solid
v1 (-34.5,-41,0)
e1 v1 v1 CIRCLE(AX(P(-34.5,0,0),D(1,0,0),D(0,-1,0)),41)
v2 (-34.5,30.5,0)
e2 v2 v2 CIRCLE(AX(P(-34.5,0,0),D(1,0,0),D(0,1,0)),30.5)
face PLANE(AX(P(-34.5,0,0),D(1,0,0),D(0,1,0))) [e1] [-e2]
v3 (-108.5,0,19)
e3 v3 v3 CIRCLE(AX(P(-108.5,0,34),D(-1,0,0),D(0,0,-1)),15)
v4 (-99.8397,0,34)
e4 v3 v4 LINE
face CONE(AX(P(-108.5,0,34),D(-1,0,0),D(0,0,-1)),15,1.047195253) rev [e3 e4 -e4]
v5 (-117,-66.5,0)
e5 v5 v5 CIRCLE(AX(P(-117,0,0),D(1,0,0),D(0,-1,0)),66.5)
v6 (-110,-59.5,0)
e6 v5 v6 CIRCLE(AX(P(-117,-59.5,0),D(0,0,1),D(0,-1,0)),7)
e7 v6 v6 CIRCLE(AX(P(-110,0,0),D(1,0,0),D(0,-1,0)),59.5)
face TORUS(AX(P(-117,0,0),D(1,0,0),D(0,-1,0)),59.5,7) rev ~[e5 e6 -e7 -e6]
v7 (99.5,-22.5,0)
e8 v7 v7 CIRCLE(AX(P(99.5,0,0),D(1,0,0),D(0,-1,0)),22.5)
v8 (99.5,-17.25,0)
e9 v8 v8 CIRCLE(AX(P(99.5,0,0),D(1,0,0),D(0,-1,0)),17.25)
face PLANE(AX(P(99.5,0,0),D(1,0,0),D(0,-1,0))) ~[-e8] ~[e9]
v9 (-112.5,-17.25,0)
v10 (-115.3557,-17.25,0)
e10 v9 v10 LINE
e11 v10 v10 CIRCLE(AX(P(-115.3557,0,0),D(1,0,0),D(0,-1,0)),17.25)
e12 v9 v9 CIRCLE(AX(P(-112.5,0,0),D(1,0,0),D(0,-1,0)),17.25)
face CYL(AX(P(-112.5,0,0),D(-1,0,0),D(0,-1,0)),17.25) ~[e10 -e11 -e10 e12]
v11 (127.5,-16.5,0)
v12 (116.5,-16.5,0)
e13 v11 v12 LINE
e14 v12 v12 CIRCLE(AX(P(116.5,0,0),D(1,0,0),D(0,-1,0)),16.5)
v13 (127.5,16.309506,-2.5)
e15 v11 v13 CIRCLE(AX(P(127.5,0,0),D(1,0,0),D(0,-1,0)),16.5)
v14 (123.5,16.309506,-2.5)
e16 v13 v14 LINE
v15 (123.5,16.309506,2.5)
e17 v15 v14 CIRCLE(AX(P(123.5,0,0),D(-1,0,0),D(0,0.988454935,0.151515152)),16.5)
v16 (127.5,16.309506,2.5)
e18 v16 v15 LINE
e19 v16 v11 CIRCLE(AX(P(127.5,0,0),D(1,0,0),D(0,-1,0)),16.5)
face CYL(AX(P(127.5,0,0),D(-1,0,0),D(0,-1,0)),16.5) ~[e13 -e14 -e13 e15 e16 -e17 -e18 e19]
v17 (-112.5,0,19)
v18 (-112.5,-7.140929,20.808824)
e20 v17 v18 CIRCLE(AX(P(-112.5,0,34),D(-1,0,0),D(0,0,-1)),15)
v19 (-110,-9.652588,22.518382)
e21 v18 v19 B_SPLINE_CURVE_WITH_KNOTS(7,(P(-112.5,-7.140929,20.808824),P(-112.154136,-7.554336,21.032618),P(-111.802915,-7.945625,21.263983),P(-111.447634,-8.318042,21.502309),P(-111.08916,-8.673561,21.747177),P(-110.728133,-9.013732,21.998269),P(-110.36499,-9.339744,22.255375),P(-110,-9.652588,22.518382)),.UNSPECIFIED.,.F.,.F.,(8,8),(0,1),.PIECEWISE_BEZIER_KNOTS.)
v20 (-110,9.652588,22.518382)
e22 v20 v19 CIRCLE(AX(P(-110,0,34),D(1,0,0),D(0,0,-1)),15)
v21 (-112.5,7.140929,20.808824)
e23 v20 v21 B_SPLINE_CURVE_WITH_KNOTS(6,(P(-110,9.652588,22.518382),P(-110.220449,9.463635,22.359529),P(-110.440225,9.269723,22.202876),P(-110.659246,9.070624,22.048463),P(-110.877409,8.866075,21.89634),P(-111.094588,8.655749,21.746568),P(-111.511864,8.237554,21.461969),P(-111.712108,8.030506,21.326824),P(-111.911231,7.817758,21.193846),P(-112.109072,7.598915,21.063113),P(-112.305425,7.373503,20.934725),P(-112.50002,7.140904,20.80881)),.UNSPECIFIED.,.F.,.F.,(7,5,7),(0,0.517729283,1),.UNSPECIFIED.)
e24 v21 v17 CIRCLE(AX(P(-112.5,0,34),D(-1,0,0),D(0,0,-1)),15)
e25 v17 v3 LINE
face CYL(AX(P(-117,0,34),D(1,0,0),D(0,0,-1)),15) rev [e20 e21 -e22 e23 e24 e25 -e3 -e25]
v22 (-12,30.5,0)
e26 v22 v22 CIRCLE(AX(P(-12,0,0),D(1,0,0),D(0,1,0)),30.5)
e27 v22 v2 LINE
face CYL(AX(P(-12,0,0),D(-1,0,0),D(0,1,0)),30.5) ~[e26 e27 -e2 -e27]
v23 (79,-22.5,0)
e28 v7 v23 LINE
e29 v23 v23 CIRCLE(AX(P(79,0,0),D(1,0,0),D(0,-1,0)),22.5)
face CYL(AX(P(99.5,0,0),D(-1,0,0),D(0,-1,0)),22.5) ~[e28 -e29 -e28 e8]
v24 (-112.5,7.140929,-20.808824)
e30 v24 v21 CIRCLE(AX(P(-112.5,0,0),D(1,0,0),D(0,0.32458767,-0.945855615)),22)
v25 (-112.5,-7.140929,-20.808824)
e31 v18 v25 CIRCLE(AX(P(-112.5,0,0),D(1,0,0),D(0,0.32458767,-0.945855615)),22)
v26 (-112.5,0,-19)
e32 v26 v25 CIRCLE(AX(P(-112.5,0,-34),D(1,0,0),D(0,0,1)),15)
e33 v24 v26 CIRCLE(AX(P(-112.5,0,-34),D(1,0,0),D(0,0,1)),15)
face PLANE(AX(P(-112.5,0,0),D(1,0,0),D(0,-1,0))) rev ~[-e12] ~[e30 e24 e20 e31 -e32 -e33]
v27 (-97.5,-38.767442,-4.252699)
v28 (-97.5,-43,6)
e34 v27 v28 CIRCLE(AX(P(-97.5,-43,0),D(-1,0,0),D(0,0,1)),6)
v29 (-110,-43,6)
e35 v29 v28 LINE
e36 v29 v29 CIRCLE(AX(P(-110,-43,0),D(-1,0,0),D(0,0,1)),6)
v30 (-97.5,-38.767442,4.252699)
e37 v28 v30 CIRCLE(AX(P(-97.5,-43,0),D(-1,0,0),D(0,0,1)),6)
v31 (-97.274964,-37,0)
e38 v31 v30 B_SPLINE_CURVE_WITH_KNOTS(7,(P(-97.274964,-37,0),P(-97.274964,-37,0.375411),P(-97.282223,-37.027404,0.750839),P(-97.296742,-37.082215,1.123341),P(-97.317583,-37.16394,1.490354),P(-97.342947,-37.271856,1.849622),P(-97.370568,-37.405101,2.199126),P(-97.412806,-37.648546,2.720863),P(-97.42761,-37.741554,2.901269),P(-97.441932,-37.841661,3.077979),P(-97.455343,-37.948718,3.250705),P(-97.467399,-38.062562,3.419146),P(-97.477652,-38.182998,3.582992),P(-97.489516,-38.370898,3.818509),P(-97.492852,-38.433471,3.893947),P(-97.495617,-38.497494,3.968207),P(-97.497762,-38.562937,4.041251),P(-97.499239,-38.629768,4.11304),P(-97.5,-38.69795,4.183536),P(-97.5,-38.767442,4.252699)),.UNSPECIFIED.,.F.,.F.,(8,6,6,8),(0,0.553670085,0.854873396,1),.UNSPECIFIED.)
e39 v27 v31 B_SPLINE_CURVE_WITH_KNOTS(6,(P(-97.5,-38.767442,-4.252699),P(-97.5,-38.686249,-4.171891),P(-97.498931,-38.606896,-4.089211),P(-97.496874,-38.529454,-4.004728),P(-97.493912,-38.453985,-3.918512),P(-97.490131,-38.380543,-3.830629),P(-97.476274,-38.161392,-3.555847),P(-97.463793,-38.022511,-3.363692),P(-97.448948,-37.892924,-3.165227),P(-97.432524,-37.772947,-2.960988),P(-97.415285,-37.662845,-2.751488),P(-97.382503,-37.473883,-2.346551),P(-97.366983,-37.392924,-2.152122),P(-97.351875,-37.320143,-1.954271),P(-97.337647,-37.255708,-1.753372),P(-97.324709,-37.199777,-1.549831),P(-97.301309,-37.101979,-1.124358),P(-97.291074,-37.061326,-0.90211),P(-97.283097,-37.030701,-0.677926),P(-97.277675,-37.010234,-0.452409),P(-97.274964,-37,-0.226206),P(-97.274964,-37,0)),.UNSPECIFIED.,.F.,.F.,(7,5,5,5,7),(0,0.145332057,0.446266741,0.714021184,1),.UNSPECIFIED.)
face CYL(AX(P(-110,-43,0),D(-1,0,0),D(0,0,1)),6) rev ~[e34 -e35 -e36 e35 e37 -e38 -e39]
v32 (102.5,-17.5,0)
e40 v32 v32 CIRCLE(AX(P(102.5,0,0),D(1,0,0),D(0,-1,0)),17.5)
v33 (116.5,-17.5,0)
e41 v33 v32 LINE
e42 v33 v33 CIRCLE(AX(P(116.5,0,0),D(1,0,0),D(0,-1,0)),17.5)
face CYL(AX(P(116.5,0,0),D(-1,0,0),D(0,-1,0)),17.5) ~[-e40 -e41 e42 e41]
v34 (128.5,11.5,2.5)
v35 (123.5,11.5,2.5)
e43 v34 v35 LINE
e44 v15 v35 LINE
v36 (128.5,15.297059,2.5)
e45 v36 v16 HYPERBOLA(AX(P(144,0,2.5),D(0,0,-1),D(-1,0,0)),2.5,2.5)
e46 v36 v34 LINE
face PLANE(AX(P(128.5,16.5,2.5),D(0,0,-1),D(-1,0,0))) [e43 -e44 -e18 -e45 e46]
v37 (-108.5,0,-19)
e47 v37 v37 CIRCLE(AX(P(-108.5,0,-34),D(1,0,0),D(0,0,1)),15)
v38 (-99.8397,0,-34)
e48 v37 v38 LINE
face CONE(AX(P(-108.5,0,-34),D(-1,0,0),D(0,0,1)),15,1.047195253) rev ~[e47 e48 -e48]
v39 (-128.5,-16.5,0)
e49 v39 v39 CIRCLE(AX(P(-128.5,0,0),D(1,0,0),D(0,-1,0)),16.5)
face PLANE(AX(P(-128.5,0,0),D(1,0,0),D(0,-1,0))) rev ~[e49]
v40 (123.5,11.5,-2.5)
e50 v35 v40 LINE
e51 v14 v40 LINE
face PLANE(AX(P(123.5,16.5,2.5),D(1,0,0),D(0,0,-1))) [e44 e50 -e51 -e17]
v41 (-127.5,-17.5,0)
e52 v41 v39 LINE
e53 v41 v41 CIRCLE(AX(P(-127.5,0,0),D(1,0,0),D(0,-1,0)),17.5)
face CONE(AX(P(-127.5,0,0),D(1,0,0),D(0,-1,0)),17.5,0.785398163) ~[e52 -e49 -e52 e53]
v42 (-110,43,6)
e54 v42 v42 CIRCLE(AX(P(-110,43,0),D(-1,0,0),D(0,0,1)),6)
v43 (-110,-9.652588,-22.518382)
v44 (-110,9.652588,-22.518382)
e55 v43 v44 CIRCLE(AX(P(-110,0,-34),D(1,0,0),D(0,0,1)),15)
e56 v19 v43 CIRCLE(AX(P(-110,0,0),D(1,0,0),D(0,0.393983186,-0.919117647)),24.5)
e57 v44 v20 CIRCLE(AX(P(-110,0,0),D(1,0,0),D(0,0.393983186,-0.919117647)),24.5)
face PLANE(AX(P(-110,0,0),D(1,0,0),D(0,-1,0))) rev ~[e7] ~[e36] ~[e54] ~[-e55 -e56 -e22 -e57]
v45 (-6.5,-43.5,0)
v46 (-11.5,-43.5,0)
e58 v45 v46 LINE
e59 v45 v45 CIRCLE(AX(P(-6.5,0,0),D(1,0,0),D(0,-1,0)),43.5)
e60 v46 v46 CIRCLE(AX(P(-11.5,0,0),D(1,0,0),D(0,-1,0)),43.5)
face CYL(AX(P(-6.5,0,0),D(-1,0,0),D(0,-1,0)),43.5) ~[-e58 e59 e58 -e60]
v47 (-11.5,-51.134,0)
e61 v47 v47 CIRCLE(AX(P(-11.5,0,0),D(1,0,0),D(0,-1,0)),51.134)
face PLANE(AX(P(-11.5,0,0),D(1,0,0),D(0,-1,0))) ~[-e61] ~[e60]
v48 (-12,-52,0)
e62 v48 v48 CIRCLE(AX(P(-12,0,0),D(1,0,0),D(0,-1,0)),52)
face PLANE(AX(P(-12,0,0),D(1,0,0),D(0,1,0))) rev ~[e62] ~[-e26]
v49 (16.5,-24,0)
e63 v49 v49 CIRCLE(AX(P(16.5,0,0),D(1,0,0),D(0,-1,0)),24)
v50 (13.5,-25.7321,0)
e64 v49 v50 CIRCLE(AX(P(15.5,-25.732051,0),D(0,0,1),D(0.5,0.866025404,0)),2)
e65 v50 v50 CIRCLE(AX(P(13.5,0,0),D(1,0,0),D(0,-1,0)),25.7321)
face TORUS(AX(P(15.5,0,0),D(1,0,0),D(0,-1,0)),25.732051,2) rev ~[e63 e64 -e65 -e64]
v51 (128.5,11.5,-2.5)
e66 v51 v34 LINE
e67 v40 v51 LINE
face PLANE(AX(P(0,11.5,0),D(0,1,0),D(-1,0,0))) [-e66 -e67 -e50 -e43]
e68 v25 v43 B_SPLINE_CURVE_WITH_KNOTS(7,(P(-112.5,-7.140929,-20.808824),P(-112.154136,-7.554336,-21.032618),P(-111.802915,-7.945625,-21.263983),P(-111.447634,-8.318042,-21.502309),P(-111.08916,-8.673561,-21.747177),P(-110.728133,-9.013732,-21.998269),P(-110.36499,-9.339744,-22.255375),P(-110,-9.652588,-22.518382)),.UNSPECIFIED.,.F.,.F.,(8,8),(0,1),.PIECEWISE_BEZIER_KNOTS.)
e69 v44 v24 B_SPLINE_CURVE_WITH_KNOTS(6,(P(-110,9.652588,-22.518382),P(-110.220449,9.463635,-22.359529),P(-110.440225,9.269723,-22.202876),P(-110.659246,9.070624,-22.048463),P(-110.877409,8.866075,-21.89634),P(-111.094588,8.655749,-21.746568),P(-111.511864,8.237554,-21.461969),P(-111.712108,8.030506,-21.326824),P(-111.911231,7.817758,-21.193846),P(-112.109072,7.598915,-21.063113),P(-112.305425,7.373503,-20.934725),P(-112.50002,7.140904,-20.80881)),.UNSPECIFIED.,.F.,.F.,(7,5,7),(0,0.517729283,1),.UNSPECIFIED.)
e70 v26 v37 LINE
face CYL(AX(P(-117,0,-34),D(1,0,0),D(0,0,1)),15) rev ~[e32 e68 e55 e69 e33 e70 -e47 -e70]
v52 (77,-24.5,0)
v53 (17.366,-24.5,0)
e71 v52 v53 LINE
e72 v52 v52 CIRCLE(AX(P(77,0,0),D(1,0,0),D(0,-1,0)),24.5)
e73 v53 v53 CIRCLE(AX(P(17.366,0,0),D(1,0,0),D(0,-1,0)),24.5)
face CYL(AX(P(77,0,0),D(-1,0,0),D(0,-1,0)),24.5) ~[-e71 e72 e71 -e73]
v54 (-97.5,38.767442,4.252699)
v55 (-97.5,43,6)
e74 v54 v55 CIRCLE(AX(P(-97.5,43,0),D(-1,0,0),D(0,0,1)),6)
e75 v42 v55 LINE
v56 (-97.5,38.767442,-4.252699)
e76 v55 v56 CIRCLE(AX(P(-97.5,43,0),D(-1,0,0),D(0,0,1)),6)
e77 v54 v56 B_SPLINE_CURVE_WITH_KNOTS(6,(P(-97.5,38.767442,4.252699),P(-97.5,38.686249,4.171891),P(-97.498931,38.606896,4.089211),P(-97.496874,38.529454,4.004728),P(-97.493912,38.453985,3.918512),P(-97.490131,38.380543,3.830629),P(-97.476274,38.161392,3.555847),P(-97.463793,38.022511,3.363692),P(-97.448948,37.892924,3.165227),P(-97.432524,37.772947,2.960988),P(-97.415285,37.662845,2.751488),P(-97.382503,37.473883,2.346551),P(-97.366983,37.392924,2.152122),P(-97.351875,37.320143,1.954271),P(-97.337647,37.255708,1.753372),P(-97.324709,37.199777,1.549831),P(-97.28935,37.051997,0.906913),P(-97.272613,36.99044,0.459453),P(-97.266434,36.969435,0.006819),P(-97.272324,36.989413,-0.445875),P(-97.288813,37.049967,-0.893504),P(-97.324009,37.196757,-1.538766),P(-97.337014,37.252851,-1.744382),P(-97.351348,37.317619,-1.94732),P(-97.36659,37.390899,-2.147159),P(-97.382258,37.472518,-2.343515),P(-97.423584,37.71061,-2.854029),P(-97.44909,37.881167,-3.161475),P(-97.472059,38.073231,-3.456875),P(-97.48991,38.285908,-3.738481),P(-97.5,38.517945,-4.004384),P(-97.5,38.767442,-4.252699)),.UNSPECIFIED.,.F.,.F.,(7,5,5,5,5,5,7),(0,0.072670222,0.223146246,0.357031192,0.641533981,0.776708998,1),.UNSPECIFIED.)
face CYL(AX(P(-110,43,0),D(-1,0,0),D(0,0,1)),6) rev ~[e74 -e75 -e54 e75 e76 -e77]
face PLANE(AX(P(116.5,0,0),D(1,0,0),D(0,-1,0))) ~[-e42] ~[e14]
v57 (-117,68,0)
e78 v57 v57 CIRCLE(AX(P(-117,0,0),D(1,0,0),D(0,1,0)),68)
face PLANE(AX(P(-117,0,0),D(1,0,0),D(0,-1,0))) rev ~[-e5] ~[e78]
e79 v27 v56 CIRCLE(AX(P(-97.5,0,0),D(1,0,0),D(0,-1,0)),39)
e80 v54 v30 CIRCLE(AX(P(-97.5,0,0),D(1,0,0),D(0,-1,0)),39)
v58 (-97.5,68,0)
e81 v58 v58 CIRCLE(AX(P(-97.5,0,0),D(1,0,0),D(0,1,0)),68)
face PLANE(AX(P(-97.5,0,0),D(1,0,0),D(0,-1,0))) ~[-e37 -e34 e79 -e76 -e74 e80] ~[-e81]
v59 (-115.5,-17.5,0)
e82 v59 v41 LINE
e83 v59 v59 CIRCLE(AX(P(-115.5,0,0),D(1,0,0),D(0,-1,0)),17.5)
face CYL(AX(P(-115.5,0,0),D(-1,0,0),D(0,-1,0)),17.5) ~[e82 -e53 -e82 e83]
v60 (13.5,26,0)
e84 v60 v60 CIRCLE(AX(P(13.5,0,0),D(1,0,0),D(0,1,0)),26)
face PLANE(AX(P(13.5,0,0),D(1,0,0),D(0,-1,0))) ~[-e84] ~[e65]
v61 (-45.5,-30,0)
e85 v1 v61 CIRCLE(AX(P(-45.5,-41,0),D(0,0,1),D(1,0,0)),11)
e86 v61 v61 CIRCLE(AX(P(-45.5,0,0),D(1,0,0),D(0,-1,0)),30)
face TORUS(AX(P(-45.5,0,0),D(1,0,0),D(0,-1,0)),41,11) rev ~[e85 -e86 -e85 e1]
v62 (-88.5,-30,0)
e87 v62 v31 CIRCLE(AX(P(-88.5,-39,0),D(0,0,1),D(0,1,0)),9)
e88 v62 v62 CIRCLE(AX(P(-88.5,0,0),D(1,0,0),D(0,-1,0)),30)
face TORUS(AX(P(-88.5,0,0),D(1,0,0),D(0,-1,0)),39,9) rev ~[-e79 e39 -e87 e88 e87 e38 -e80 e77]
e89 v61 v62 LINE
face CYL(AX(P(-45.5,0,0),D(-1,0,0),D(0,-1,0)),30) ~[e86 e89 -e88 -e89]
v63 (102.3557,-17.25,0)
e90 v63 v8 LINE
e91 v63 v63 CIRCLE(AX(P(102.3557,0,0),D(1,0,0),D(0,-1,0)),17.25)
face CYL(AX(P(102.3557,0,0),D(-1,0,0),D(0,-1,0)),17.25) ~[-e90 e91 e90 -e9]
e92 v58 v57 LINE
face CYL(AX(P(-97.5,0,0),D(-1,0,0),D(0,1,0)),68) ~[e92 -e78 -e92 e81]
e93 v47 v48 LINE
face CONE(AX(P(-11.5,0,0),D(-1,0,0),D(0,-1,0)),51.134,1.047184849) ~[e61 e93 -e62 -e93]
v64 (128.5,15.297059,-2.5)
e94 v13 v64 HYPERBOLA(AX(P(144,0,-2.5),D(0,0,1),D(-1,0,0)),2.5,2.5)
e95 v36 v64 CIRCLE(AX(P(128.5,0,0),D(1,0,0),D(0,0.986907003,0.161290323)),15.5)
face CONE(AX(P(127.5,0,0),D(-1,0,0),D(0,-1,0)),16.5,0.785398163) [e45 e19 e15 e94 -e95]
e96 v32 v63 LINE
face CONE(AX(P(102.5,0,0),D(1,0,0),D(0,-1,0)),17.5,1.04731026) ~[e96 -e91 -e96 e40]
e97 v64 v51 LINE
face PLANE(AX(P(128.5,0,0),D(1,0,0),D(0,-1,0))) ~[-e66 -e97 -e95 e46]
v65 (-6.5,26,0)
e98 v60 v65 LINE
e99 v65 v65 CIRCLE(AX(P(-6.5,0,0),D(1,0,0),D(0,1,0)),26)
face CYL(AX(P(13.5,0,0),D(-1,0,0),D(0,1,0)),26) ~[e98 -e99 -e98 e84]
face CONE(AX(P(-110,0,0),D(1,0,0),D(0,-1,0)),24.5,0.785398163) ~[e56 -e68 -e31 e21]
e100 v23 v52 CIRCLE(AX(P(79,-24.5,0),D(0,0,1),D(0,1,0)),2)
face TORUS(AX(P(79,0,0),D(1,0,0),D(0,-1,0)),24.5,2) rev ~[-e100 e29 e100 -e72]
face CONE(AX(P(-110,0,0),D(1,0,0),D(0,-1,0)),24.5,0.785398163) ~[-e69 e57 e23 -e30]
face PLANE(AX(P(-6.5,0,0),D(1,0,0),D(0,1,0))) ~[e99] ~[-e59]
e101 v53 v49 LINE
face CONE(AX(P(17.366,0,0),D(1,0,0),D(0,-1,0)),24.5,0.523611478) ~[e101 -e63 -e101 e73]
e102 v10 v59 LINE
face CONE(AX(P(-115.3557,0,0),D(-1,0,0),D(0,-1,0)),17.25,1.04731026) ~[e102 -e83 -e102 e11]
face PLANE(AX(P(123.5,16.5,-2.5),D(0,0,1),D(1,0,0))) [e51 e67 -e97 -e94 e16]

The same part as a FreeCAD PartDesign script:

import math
import FreeCAD as App
import Part
import Sketcher
Q = App.Units.Quantity

doc = App.newDocument("Part")
body = doc.addObject("PartDesign::Body", "Body")

# Sketch on XY plane
sketch1 = body.newObject("Sketcher::SketchObject", "Sketch")
sketch1.AttachmentSupport = (doc.getObject("XY_Plane"), [""])
sketch1.MapMode = "FlatFace"
sketch1.addGeometry(Part.LineSegment(App.Vector(128.5, 0, 0), App.Vector(-128.5, 0, 0)), False)
sketch1.addGeometry(Part.LineSegment(App.Vector(-128.5, 0, 0), App.Vector(-128.5, -16.5, 0)), False)
sketch1.addGeometry(Part.LineSegment(App.Vector(-128.5, -16.5, 0), App.Vector(-127.5, -17.5, 0)), False)
sketch1.addGeometry(Part.LineSegment(App.Vector(-127.5, -17.5, 0), App.Vector(-115.5, -17.5, 0)), False)
sketch1.addGeometry(Part.LineSegment(App.Vector(-115.5, -17.5, 0), App.Vector(-115.3557, -17.25, 0)), False)
sketch1.addGeometry(Part.LineSegment(App.Vector(-115.3557, -17.25, 0), App.Vector(-112.5, -17.25, 0)), False)
sketch1.addGeometry(Part.LineSegment(App.Vector(-112.5, -17.25, 0), App.Vector(-112.5, -22, 0)), False)
sketch1.addGeometry(Part.LineSegment(App.Vector(-112.5, -22, 0), App.Vector(-110, -24.5, 0)), False)
sketch1.addGeometry(Part.LineSegment(App.Vector(-110, -24.5, 0), App.Vector(-110, -59.5, 0)), False)
sketch1.addGeometry(Part.ArcOfCircle(Part.Circle(App.Vector(-117, -59.5, 0), App.Vector(0, 0, 1), 7), math.radians(-90), math.radians(0)), False)
sketch1.addGeometry(Part.LineSegment(App.Vector(-117, -66.5, 0), App.Vector(-117, -81.1, 0)), False)
sketch1.addGeometry(Part.LineSegment(App.Vector(-117, -81.1, 0), App.Vector(-97.5, -81.1, 0)), False)
sketch1.addGeometry(Part.LineSegment(App.Vector(-97.5, -81.1, 0), App.Vector(-97.5, -39, 0)), False)
sketch1.addGeometry(Part.ArcOfCircle(Part.Circle(App.Vector(-88.5, -39, 0), App.Vector(0, 0, 1), 9), math.radians(90), math.radians(180)), False)
sketch1.addGeometry(Part.LineSegment(App.Vector(-88.5, -30, 0), App.Vector(-45.5, -30, 0)), False)
sketch1.addGeometry(Part.ArcOfCircle(Part.Circle(App.Vector(-45.5, -41, 0), App.Vector(0, 0, 1), 11), math.radians(0), math.radians(90)), False)
sketch1.addGeometry(Part.LineSegment(App.Vector(-34.5, -41, 0), App.Vector(-34.5, -68.35, 0)), False)
sketch1.addGeometry(Part.LineSegment(App.Vector(-34.5, -68.35, 0), App.Vector(-12, -68.35, 0)), False)
sketch1.addGeometry(Part.LineSegment(App.Vector(-12, -68.35, 0), App.Vector(-12, -52, 0)), False)
sketch1.addGeometry(Part.LineSegment(App.Vector(-12, -52, 0), App.Vector(-11.5, -51.134, 0)), False)
sketch1.addGeometry(Part.LineSegment(App.Vector(-11.5, -51.134, 0), App.Vector(-11.5, -43.5, 0)), False)
sketch1.addGeometry(Part.LineSegment(App.Vector(-11.5, -43.5, 0), App.Vector(-6.5, -43.5, 0)), False)
sketch1.addGeometry(Part.LineSegment(App.Vector(-6.5, -43.5, 0), App.Vector(-6.5, -52.283, 0)), False)
sketch1.addGeometry(Part.LineSegment(App.Vector(-6.5, -52.283, 0), App.Vector(13.5, -52.283, 0)), False)
sketch1.addGeometry(Part.LineSegment(App.Vector(13.5, -52.283, 0), App.Vector(13.5, -25.7321, 0)), False)
sketch1.addGeometry(Part.ArcOfCircle(Part.Circle(App.Vector(15.5, -25.7321, 0), App.Vector(0, 0, 1), 2.000043), math.radians(60.000705), math.radians(180)), False)
sketch1.addGeometry(Part.LineSegment(App.Vector(16.5, -24, 0), App.Vector(17.366, -24.5, 0)), False)
sketch1.addGeometry(Part.LineSegment(App.Vector(17.366, -24.5, 0), App.Vector(77, -24.5, 0)), False)
sketch1.addGeometry(Part.ArcOfCircle(Part.Circle(App.Vector(79, -24.5, 0), App.Vector(0, 0, 1), 2), math.radians(90), math.radians(180)), False)
sketch1.addGeometry(Part.LineSegment(App.Vector(79, -22.5, 0), App.Vector(99.5, -22.5, 0)), False)
sketch1.addGeometry(Part.LineSegment(App.Vector(99.5, -22.5, 0), App.Vector(99.5, -17.25, 0)), False)
sketch1.addGeometry(Part.LineSegment(App.Vector(99.5, -17.25, 0), App.Vector(102.3557, -17.25, 0)), False)
sketch1.addGeometry(Part.LineSegment(App.Vector(102.3557, -17.25, 0), App.Vector(102.5, -17.5, 0)), False)
sketch1.addGeometry(Part.LineSegment(App.Vector(102.5, -17.5, 0), App.Vector(116.5, -17.5, 0)), False)
sketch1.addGeometry(Part.LineSegment(App.Vector(116.5, -17.5, 0), App.Vector(116.5, -16.5, 0)), False)
sketch1.addGeometry(Part.LineSegment(App.Vector(116.5, -16.5, 0), App.Vector(127.5, -16.5, 0)), False)
sketch1.addGeometry(Part.LineSegment(App.Vector(127.5, -16.5, 0), App.Vector(128.5, -15.5, 0)), False)
sketch1.addGeometry(Part.LineSegment(App.Vector(128.5, -15.5, 0), App.Vector(128.5, 0, 0)), False)
sketch1.addConstraint(Sketcher.Constraint("Coincident", 0, 2, 1, 1))
sketch1.addConstraint(Sketcher.Constraint("Coincident", 1, 2, 2, 1))
sketch1.addConstraint(Sketcher.Constraint("Coincident", 2, 2, 3, 1))
sketch1.addConstraint(Sketcher.Constraint("Coincident", 3, 2, 4, 1))
sketch1.addConstraint(Sketcher.Constraint("Coincident", 4, 2, 5, 1))
sketch1.addConstraint(Sketcher.Constraint("Coincident", 5, 2, 6, 1))
sketch1.addConstraint(Sketcher.Constraint("Coincident", 6, 2, 7, 1))
sketch1.addConstraint(Sketcher.Constraint("Coincident", 7, 2, 8, 1))
sketch1.addConstraint(Sketcher.Constraint("Tangent", 8, 2, 9, 2))
sketch1.addConstraint(Sketcher.Constraint("Coincident", 9, 1, 10, 1))
sketch1.addConstraint(Sketcher.Constraint("Coincident", 10, 2, 11, 1))
sketch1.addConstraint(Sketcher.Constraint("Coincident", 11, 2, 12, 1))
sketch1.addConstraint(Sketcher.Constraint("Tangent", 12, 2, 13, 2))
sketch1.addConstraint(Sketcher.Constraint("Tangent", 13, 1, 14, 1))
sketch1.addConstraint(Sketcher.Constraint("Tangent", 14, 2, 15, 2))
sketch1.addConstraint(Sketcher.Constraint("Tangent", 15, 1, 16, 1))
sketch1.addConstraint(Sketcher.Constraint("Coincident", 16, 2, 17, 1))
sketch1.addConstraint(Sketcher.Constraint("Coincident", 17, 2, 18, 1))
sketch1.addConstraint(Sketcher.Constraint("Coincident", 18, 2, 19, 1))
sketch1.addConstraint(Sketcher.Constraint("Coincident", 19, 2, 20, 1))
sketch1.addConstraint(Sketcher.Constraint("Coincident", 20, 2, 21, 1))
sketch1.addConstraint(Sketcher.Constraint("Coincident", 21, 2, 22, 1))
sketch1.addConstraint(Sketcher.Constraint("Coincident", 22, 2, 23, 1))
sketch1.addConstraint(Sketcher.Constraint("Coincident", 23, 2, 24, 1))
sketch1.addConstraint(Sketcher.Constraint("Tangent", 24, 2, 25, 2))
sketch1.addConstraint(Sketcher.Constraint("Tangent", 25, 1, 26, 1))
sketch1.addConstraint(Sketcher.Constraint("Coincident", 26, 2, 27, 1))
sketch1.addConstraint(Sketcher.Constraint("Coincident", 27, 2, 28, 2))
sketch1.addConstraint(Sketcher.Constraint("Tangent", 28, 1, 29, 1))
sketch1.addConstraint(Sketcher.Constraint("Coincident", 29, 2, 30, 1))
sketch1.addConstraint(Sketcher.Constraint("Coincident", 30, 2, 31, 1))
sketch1.addConstraint(Sketcher.Constraint("Coincident", 31, 2, 32, 1))
sketch1.addConstraint(Sketcher.Constraint("Coincident", 32, 2, 33, 1))
sketch1.addConstraint(Sketcher.Constraint("Coincident", 33, 2, 34, 1))
sketch1.addConstraint(Sketcher.Constraint("Coincident", 34, 2, 35, 1))
sketch1.addConstraint(Sketcher.Constraint("Coincident", 35, 2, 36, 1))
sketch1.addConstraint(Sketcher.Constraint("Coincident", 36, 2, 37, 1))
sketch1.addConstraint(Sketcher.Constraint("Coincident", 37, 2, 0, 1))
sketch1.addConstraint(Sketcher.Constraint("Horizontal", 0))
sketch1.addConstraint(Sketcher.Constraint("Vertical", 1))
sketch1.addConstraint(Sketcher.Constraint("Horizontal", 3))
sketch1.addConstraint(Sketcher.Constraint("Horizontal", 5))
sketch1.addConstraint(Sketcher.Constraint("Vertical", 6))
sketch1.addConstraint(Sketcher.Constraint("Vertical", 8))
sketch1.addConstraint(Sketcher.Constraint("Vertical", 10))
sketch1.addConstraint(Sketcher.Constraint("Horizontal", 11))
sketch1.addConstraint(Sketcher.Constraint("Vertical", 12))
sketch1.addConstraint(Sketcher.Constraint("Horizontal", 14))
sketch1.addConstraint(Sketcher.Constraint("Vertical", 16))
sketch1.addConstraint(Sketcher.Constraint("Horizontal", 17))
sketch1.addConstraint(Sketcher.Constraint("Vertical", 18))
sketch1.addConstraint(Sketcher.Constraint("Vertical", 20))
sketch1.addConstraint(Sketcher.Constraint("Horizontal", 21))
sketch1.addConstraint(Sketcher.Constraint("Vertical", 22))
sketch1.addConstraint(Sketcher.Constraint("Horizontal", 23))
sketch1.addConstraint(Sketcher.Constraint("Vertical", 24))
sketch1.addConstraint(Sketcher.Constraint("Horizontal", 27))
sketch1.addConstraint(Sketcher.Constraint("Horizontal", 29))
sketch1.addConstraint(Sketcher.Constraint("Vertical", 30))
sketch1.addConstraint(Sketcher.Constraint("Horizontal", 31))
sketch1.addConstraint(Sketcher.Constraint("Horizontal", 33))
sketch1.addConstraint(Sketcher.Constraint("Vertical", 34))
sketch1.addConstraint(Sketcher.Constraint("Horizontal", 35))
sketch1.addConstraint(Sketcher.Constraint("Vertical", 37))
sketch1.addConstraint(Sketcher.Constraint("Equal", 25, 28))
sketch1.addConstraint(Sketcher.Constraint("Symmetric", 0, 2, 37, 2, -1, 1))
sketch1.addConstraint(Sketcher.Constraint("Parallel", 2, 7))
sketch1.addConstraint(Sketcher.Constraint("Parallel", 4, 19))
sketch1.addConstraint(Sketcher.Constraint("Perpendicular", 19, 26))
sketch1.addConstraint(Sketcher.Constraint("Perpendicular", 7, 36))
sketch1.addConstraint(Sketcher.Constraint("Horizontal", 28, 3, 7, 2))
sketch1.addConstraint(Sketcher.Constraint("Horizontal", 7, 2, 26, 2))
sketch1.addConstraint(Sketcher.Constraint("Horizontal", 5, 2, 30, 2))
sketch1.addConstraint(Sketcher.Constraint("Horizontal", 3, 2, 32, 2))
sketch1.addConstraint(Sketcher.Constraint("Horizontal", 1, 2, 34, 2))
sketch1.addConstraint(Sketcher.Constraint("Equal", 5, 31))
sketch1.addConstraint(Sketcher.Constraint("Equal", 19, 26))
sketch1.addConstraint(Sketcher.Constraint("Equal", 4, 32))
sketch1.addConstraint(Sketcher.Constraint("Equal", 2, 36))
sketch1.addConstraint(Sketcher.Constraint("Radius", 9, Q("7 mm")))
sketch1.addConstraint(Sketcher.Constraint("Radius", 13, Q("9 mm")))
sketch1.addConstraint(Sketcher.Constraint("Radius", 15, Q("11 mm")))
sketch1.addConstraint(Sketcher.Constraint("Radius", 25, Q("2 mm")))
sketch1.addConstraint(Sketcher.Constraint("DistanceX", 0, 2, 0, 1, Q("257 mm")))
sketch1.addConstraint(Sketcher.Constraint("DistanceX", 21, 1, 21, 2, Q("5 mm")))
sketch1.addConstraint(Sketcher.Constraint("DistanceX", 23, 1, 23, 2, Q("20 mm")))
sketch1.addConstraint(Sketcher.Constraint("DistanceX", 35, 1, 35, 2, Q("11 mm")))
sketch1.addConstraint(Sketcher.Constraint("DistanceY", 8, 2, 8, 1, Q("35 mm")))
sketch1.addConstraint(Sketcher.Constraint("DistanceY", 34, 1, 34, 2, Q("1 mm")))
sketch1.addConstraint(Sketcher.Constraint("Angle", 2, Q("-45 deg")))
sketch1.addConstraint(Sketcher.Constraint("Distance", 19, Q("1 mm")))
sketch1.addConstraint(Sketcher.Constraint("DistanceX", 11, 1, 11, 2, Q("19.5 mm")))
sketch1.addConstraint(Sketcher.Constraint("DistanceX", 17, 1, 17, 2, Q("22.5 mm")))
sketch1.addConstraint(Sketcher.Constraint("DistanceY", 13, 1, -1, 1, Q("30 mm")))
sketch1.addConstraint(Sketcher.Constraint("DistanceX", 13, 3, 25, 3, Q("104 mm")))
sketch1.addConstraint(Sketcher.Constraint("DistanceX", 3, 2, 5, 2, Q("3 mm")))
sketch1.addConstraint(Sketcher.Constraint("DistanceY", 7, 2, 3, 2, Q("7 mm")))
sketch1.addConstraint(Sketcher.Constraint("DistanceX", 9, 1, 8, 2, Q("7 mm")))
sketch1.addConstraint(Sketcher.Constraint("DistanceY", 12, 2, 6, 2, Q("17 mm")))
sketch1.addConstraint(Sketcher.Constraint("DistanceY", 18, 2, 15, 1, Q("11 mm")))
sketch1.addConstraint(Sketcher.Constraint("DistanceX", 25, 3, 25, 1, Q("1 mm")))
sketch1.addConstraint(Sketcher.Constraint("DistanceX", 30, 2, 33, 2, Q("17 mm")))
sketch1.addConstraint(Sketcher.Constraint("DistanceX", 15, 1, -1, 1, Q("34.5 mm")))
sketch1.addConstraint(Sketcher.Constraint("DistanceY", 28, 1, -1, 1, Q("22.5 mm")))
sketch1.addConstraint(Sketcher.Constraint("DistanceY", 21, 2, 25, 1, Q("19.5 mm")))
sketch1.addConstraint(Sketcher.Constraint("DistanceX", 27, 2, 29, 2, Q("22.5 mm")))
sketch1.addConstraint(Sketcher.Constraint("DistanceY", 10, 2, 10, 1, Q("14.6 mm")))
sketch1.addConstraint(Sketcher.Constraint("DistanceY", 6, 2, 6, 1, Q("4.75 mm")))
sketch1.addConstraint(Sketcher.Constraint("DistanceY", 16, 2, 16, 1, Q("27.35 mm")))
sketch1.addConstraint(Sketcher.Constraint("DistanceY", 22, 2, 22, 1, Q("8.783 mm")))
revolution = body.newObject("PartDesign::Revolution", "Revolution")
revolution.Profile = sketch1
revolution.ReferenceAxis = (sketch1, ["H_Axis"])
revolution.Angle = 360

# Sketch on XZ plane
sketch2 = body.newObject("Sketcher::SketchObject", "Sketch001")
sketch2.AttachmentSupport = (doc.getObject("XZ_Plane"), [""])
sketch2.MapMode = "FlatFace"
sketch2.AttachmentOffset = App.Placement(App.Vector(0, 0, -16.5), App.Rotation())
sketch2.addGeometry(Part.LineSegment(App.Vector(128.5, 2.5, 0), App.Vector(128.5, -2.5, 0)), False)
sketch2.addGeometry(Part.LineSegment(App.Vector(128.5, -2.5, 0), App.Vector(123.5, -2.5, 0)), False)
sketch2.addGeometry(Part.LineSegment(App.Vector(123.5, -2.5, 0), App.Vector(123.5, 2.5, 0)), False)
sketch2.addGeometry(Part.LineSegment(App.Vector(123.5, 2.5, 0), App.Vector(128.5, 2.5, 0)), False)
sketch2.addConstraint(Sketcher.Constraint("Coincident", 0, 2, 1, 1))
sketch2.addConstraint(Sketcher.Constraint("Coincident", 1, 2, 2, 1))
sketch2.addConstraint(Sketcher.Constraint("Coincident", 2, 2, 3, 1))
sketch2.addConstraint(Sketcher.Constraint("Coincident", 3, 2, 0, 1))
sketch2.addConstraint(Sketcher.Constraint("Vertical", 0))
sketch2.addConstraint(Sketcher.Constraint("Horizontal", 1))
sketch2.addConstraint(Sketcher.Constraint("Vertical", 2))
sketch2.addConstraint(Sketcher.Constraint("Horizontal", 3))
sketch2.addConstraint(Sketcher.Constraint("Equal", 3, 0))
sketch2.addConstraint(Sketcher.Constraint("DistanceX", 1, 2, 1, 1, Q("5 mm")))
sketch2.addConstraint(Sketcher.Constraint("DistanceX", -1, 1, 0, 2, Q("128.5 mm")))
sketch2.addConstraint(Sketcher.Constraint("DistanceY", 0, 2, -1, 1, Q("2.5 mm")))
pocket1 = body.newObject("PartDesign::Pocket", "Pocket")
pocket1.Profile = sketch2
pocket1.Length = 5
pocket1.Reversed = True

# Sketch on YZ plane
sketch3 = body.newObject("Sketcher::SketchObject", "Sketch002")
sketch3.AttachmentSupport = (doc.getObject("YZ_Plane"), [""])
sketch3.MapMode = "FlatFace"
sketch3.AttachmentOffset = App.Placement(App.Vector(0, 0, -110), App.Rotation())
sketch3.addGeometry(Part.Circle(App.Vector(43, 0, 0), App.Vector(0, 0, 1), 6), False)
sketch3.addGeometry(Part.Circle(App.Vector(-43, 0, 0), App.Vector(0, 0, 1), 6), False)
sketch3.addConstraint(Sketcher.Constraint("Equal", 0, 1))
sketch3.addConstraint(Sketcher.Constraint("Symmetric", 0, 3, 1, 3, -1, 1))
sketch3.addConstraint(Sketcher.Constraint("PointOnObject", 0, 3, -1))
sketch3.addConstraint(Sketcher.Constraint("Diameter", 0, Q("12 mm")))
sketch3.addConstraint(Sketcher.Constraint("DistanceX", 1, 3, 0, 3, Q("86 mm")))
pocket2 = body.newObject("PartDesign::Pocket", "Pocket001")
pocket2.Profile = sketch3
pocket2.Length = 34
pocket2.Reversed = True

# Sketch on XZ plane
sketch4 = body.newObject("Sketcher::SketchObject", "Sketch003")
sketch4.AttachmentSupport = (doc.getObject("XZ_Plane"), [""])
sketch4.MapMode = "FlatFace"
sketch4.addGeometry(Part.LineSegment(App.Vector(-99.8397, -34, 0), App.Vector(-117, -34, 0)), False)
sketch4.addGeometry(Part.LineSegment(App.Vector(-117, -34, 0), App.Vector(-117, -19, 0)), False)
sketch4.addGeometry(Part.LineSegment(App.Vector(-117, -19, 0), App.Vector(-108.5, -19, 0)), False)
sketch4.addGeometry(Part.LineSegment(App.Vector(-108.5, -19, 0), App.Vector(-99.8397, -34, 0)), False)
sketch4.addGeometry(Part.LineSegment(App.Vector(-117, -34, 0), App.Vector(-99.8397, -34, 0)), True)  # axis
sketch4.addConstraint(Sketcher.Constraint("Coincident", 0, 2, 1, 1))
sketch4.addConstraint(Sketcher.Constraint("Coincident", 1, 2, 2, 1))
sketch4.addConstraint(Sketcher.Constraint("Coincident", 2, 2, 3, 1))
sketch4.addConstraint(Sketcher.Constraint("Coincident", 3, 2, 0, 1))
sketch4.addConstraint(Sketcher.Constraint("Horizontal", 0))
sketch4.addConstraint(Sketcher.Constraint("Vertical", 1))
sketch4.addConstraint(Sketcher.Constraint("Horizontal", 2))
sketch4.addConstraint(Sketcher.Constraint("Horizontal", 4))
sketch4.addConstraint(Sketcher.Constraint("Coincident", 4, 1, 0, 2))
sketch4.addConstraint(Sketcher.Constraint("Equal", 0, 4))
sketch4.addConstraint(Sketcher.Constraint("Angle", 3, Q("-59.9999 deg")))
sketch4.addConstraint(Sketcher.Constraint("DistanceY", 1, 1, 1, 2, Q("15 mm")))
sketch4.addConstraint(Sketcher.Constraint("DistanceX", 2, 1, 2, 2, Q("8.5 mm")))
sketch4.addConstraint(Sketcher.Constraint("DistanceX", 0, 2, -1, 1, Q("117 mm")))
sketch4.addConstraint(Sketcher.Constraint("DistanceY", 0, 2, -1, 1, Q("34 mm")))
groove = body.newObject("PartDesign::Groove", "Groove")
groove.Profile = sketch4
groove.ReferenceAxis = (sketch4, ["Axis0"])
groove.Angle = 360
doc.recompute()

mirrored = body.newObject("PartDesign::Mirrored", "Mirrored")
mirrored.Originals = [groove]
mirrored.MirrorPlane = (doc.getObject("XY_Plane"), [""])
body.Tip = mirrored

# Sketch on XY plane
sketch5 = body.newObject("Sketcher::SketchObject", "Sketch004")
sketch5.AttachmentSupport = (doc.getObject("XY_Plane"), [""])
sketch5.MapMode = "FlatFace"
sketch5.addGeometry(Part.LineSegment(App.Vector(-117, 81.1, 0), App.Vector(-117, 68, 0)), False)
sketch5.addGeometry(Part.LineSegment(App.Vector(-117, 68, 0), App.Vector(-97.5, 68, 0)), False)
sketch5.addGeometry(Part.LineSegment(App.Vector(-97.5, 68, 0), App.Vector(-97.5, 81.1, 0)), False)
sketch5.addGeometry(Part.LineSegment(App.Vector(-97.5, 81.1, 0), App.Vector(-117, 81.1, 0)), False)
sketch5.addConstraint(Sketcher.Constraint("Coincident", 0, 2, 1, 1))
sketch5.addConstraint(Sketcher.Constraint("Coincident", 1, 2, 2, 1))
sketch5.addConstraint(Sketcher.Constraint("Coincident", 2, 2, 3, 1))
sketch5.addConstraint(Sketcher.Constraint("Coincident", 3, 2, 0, 1))
sketch5.addConstraint(Sketcher.Constraint("Vertical", 0))
sketch5.addConstraint(Sketcher.Constraint("Horizontal", 1))
sketch5.addConstraint(Sketcher.Constraint("Vertical", 2))
sketch5.addConstraint(Sketcher.Constraint("Horizontal", 3))
sketch5.addConstraint(Sketcher.Constraint("DistanceX", 1, 1, 1, 2, Q("19.5 mm")))
sketch5.addConstraint(Sketcher.Constraint("DistanceY", 0, 2, 0, 1, Q("13.1 mm")))
sketch5.addConstraint(Sketcher.Constraint("DistanceX", 0, 2, -1, 1, Q("117 mm")))
sketch5.addConstraint(Sketcher.Constraint("DistanceY", -1, 1, 0, 2, Q("68 mm")))
groove2 = body.newObject("PartDesign::Groove", "Groove001")
groove2.Profile = sketch5
groove2.ReferenceAxis = (sketch5, ["H_Axis"])
groove2.Angle = 360

# Sketch on XY plane
sketch6 = body.newObject("Sketcher::SketchObject", "Sketch005")
sketch6.AttachmentSupport = (doc.getObject("XY_Plane"), [""])
sketch6.MapMode = "FlatFace"
sketch6.addGeometry(Part.LineSegment(App.Vector(-34.5, 68.35, 0), App.Vector(-34.5, 30.5, 0)), False)
sketch6.addGeometry(Part.LineSegment(App.Vector(-34.5, 30.5, 0), App.Vector(-12, 30.5, 0)), False)
sketch6.addGeometry(Part.LineSegment(App.Vector(-12, 30.5, 0), App.Vector(-12, 68.35, 0)), False)
sketch6.addGeometry(Part.LineSegment(App.Vector(-12, 68.35, 0), App.Vector(-34.5, 68.35, 0)), False)
sketch6.addConstraint(Sketcher.Constraint("Coincident", 0, 2, 1, 1))
sketch6.addConstraint(Sketcher.Constraint("Coincident", 1, 2, 2, 1))
sketch6.addConstraint(Sketcher.Constraint("Coincident", 2, 2, 3, 1))
sketch6.addConstraint(Sketcher.Constraint("Coincident", 3, 2, 0, 1))
sketch6.addConstraint(Sketcher.Constraint("Vertical", 0))
sketch6.addConstraint(Sketcher.Constraint("Horizontal", 1))
sketch6.addConstraint(Sketcher.Constraint("Vertical", 2))
sketch6.addConstraint(Sketcher.Constraint("Horizontal", 3))
sketch6.addConstraint(Sketcher.Constraint("DistanceX", 1, 1, 1, 2, Q("22.5 mm")))
sketch6.addConstraint(Sketcher.Constraint("DistanceX", 1, 2, -1, 1, Q("12 mm")))
sketch6.addConstraint(Sketcher.Constraint("DistanceY", 0, 2, 0, 1, Q("37.85 mm")))
sketch6.addConstraint(Sketcher.Constraint("DistanceY", -1, 1, 0, 2, Q("30.5 mm")))
groove3 = body.newObject("PartDesign::Groove", "Groove002")
groove3.Profile = sketch6
groove3.ReferenceAxis = (sketch6, ["H_Axis"])
groove3.Angle = 360

# Sketch on XY plane
sketch7 = body.newObject("Sketcher::SketchObject", "Sketch006")
sketch7.AttachmentSupport = (doc.getObject("XY_Plane"), [""])
sketch7.MapMode = "FlatFace"
sketch7.addGeometry(Part.LineSegment(App.Vector(13.5, 26, 0), App.Vector(13.5, 52.283, 0)), False)
sketch7.addGeometry(Part.LineSegment(App.Vector(13.5, 52.283, 0), App.Vector(-6.5, 52.283, 0)), False)
sketch7.addGeometry(Part.LineSegment(App.Vector(-6.5, 52.283, 0), App.Vector(-6.5, 26, 0)), False)
sketch7.addGeometry(Part.LineSegment(App.Vector(-6.5, 26, 0), App.Vector(13.5, 26, 0)), False)
sketch7.addConstraint(Sketcher.Constraint("Coincident", 0, 2, 1, 1))
sketch7.addConstraint(Sketcher.Constraint("Coincident", 1, 2, 2, 1))
sketch7.addConstraint(Sketcher.Constraint("Coincident", 2, 2, 3, 1))
sketch7.addConstraint(Sketcher.Constraint("Coincident", 3, 2, 0, 1))
sketch7.addConstraint(Sketcher.Constraint("Vertical", 0))
sketch7.addConstraint(Sketcher.Constraint("Horizontal", 1))
sketch7.addConstraint(Sketcher.Constraint("Vertical", 2))
sketch7.addConstraint(Sketcher.Constraint("Horizontal", 3))
sketch7.addConstraint(Sketcher.Constraint("DistanceX", 1, 2, 1, 1, Q("20 mm")))
sketch7.addConstraint(Sketcher.Constraint("DistanceY", -1, 1, 2, 2, Q("26 mm")))
sketch7.addConstraint(Sketcher.Constraint("DistanceX", -1, 1, 0, 2, Q("13.5 mm")))
sketch7.addConstraint(Sketcher.Constraint("DistanceY", 0, 1, 0, 2, Q("26.283 mm")))
groove4 = body.newObject("PartDesign::Groove", "Groove003")
groove4.Profile = sketch7
groove4.ReferenceAxis = (sketch7, ["H_Axis"])
groove4.Angle = 360

doc.recompute()
